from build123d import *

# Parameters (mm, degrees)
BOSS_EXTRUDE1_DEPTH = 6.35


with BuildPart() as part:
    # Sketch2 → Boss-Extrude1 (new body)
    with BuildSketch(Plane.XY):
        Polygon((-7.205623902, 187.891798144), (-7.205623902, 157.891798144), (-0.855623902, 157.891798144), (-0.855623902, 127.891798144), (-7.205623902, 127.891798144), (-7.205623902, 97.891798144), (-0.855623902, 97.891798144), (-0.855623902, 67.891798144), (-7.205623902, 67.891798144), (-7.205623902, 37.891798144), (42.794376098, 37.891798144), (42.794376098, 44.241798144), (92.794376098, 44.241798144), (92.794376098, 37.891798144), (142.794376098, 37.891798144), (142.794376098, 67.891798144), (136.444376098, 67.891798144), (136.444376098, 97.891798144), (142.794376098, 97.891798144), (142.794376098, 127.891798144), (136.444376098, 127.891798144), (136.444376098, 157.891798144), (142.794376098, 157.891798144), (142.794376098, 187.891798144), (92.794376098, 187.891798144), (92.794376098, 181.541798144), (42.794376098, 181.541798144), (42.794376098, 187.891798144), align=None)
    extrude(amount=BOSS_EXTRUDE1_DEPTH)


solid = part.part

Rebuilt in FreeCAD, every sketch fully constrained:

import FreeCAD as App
import Part
import Sketcher

doc = App.newDocument("Part")
body = doc.addObject("PartDesign::Body", "Body")

# Sketch on XY plane
sketch1 = body.newObject("Sketcher::SketchObject", "Sketch")
sketch1.AttachmentSupport = (doc.getObject("XY_Plane"), [""])
sketch1.MapMode = "FlatFace"
sketch1.addGeometry([
    Part.LineSegment(App.Vector(-7.205624, 187.891798, 0), App.Vector(-7.205624, 157.891798, 0)),  # 0
    Part.LineSegment(App.Vector(-7.205624, 157.891798, 0), App.Vector(-0.855624, 157.891798, 0)),  # 1
    Part.LineSegment(App.Vector(-0.855624, 157.891798, 0), App.Vector(-0.855624, 127.891798, 0)),  # 2
    Part.LineSegment(App.Vector(-0.855624, 127.891798, 0), App.Vector(-7.205624, 127.891798, 0)),  # 3
    Part.LineSegment(App.Vector(-7.205624, 127.891798, 0), App.Vector(-7.205624, 97.891798, 0)),  # 4
    Part.LineSegment(App.Vector(-7.205624, 97.891798, 0), App.Vector(-0.855624, 97.891798, 0)),  # 5
    Part.LineSegment(App.Vector(-0.855624, 97.891798, 0), App.Vector(-0.855624, 67.891798, 0)),  # 6
    Part.LineSegment(App.Vector(-0.855624, 67.891798, 0), App.Vector(-7.205624, 67.891798, 0)),  # 7
    Part.LineSegment(App.Vector(-7.205624, 67.891798, 0), App.Vector(-7.205624, 37.891798, 0)),  # 8
    Part.LineSegment(App.Vector(-7.205624, 37.891798, 0), App.Vector(42.794376, 37.891798, 0)),  # 9
    Part.LineSegment(App.Vector(42.794376, 37.891798, 0), App.Vector(42.794376, 44.241798, 0)),  # 10
    Part.LineSegment(App.Vector(42.794376, 44.241798, 0), App.Vector(92.794376, 44.241798, 0)),  # 11
    Part.LineSegment(App.Vector(92.794376, 44.241798, 0), App.Vector(92.794376, 37.891798, 0)),  # 12
    Part.LineSegment(App.Vector(92.794376, 37.891798, 0), App.Vector(142.794376, 37.891798, 0)),  # 13
    Part.LineSegment(App.Vector(142.794376, 37.891798, 0), App.Vector(142.794376, 67.891798, 0)),  # 14
    Part.LineSegment(App.Vector(142.794376, 67.891798, 0), App.Vector(136.444376, 67.891798, 0)),  # 15
    Part.LineSegment(App.Vector(136.444376, 67.891798, 0), App.Vector(136.444376, 97.891798, 0)),  # 16
    Part.LineSegment(App.Vector(136.444376, 97.891798, 0), App.Vector(142.794376, 97.891798, 0)),  # 17
    Part.LineSegment(App.Vector(142.794376, 97.891798, 0), App.Vector(142.794376, 127.891798, 0)),  # 18
    Part.LineSegment(App.Vector(142.794376, 127.891798, 0), App.Vector(136.444376, 127.891798, 0)),  # 19
    Part.LineSegment(App.Vector(136.444376, 127.891798, 0), App.Vector(136.444376, 157.891798, 0)),  # 20
    Part.LineSegment(App.Vector(136.444376, 157.891798, 0), App.Vector(142.794376, 157.891798, 0)),  # 21
    Part.LineSegment(App.Vector(142.794376, 157.891798, 0), App.Vector(142.794376, 187.891798, 0)),  # 22
    Part.LineSegment(App.Vector(142.794376, 187.891798, 0), App.Vector(92.794376, 187.891798, 0)),  # 23
    Part.LineSegment(App.Vector(92.794376, 187.891798, 0), App.Vector(92.794376, 181.541798, 0)),  # 24
    Part.LineSegment(App.Vector(92.794376, 181.541798, 0), App.Vector(42.794376, 181.541798, 0)),  # 25
    Part.LineSegment(App.Vector(42.794376, 181.541798, 0), App.Vector(42.794376, 187.891798, 0)),  # 26
    Part.LineSegment(App.Vector(42.794376, 187.891798, 0), App.Vector(-7.205624, 187.891798, 0)),  # 27
], False)
sketch1.addConstraint([
    Sketcher.Constraint("Coincident", 0, 2, 1, 1),
    Sketcher.Constraint("Coincident", 1, 2, 2, 1),
    Sketcher.Constraint("Coincident", 2, 2, 3, 1),
    Sketcher.Constraint("Coincident", 3, 2, 4, 1),
    Sketcher.Constraint("Coincident", 4, 2, 5, 1),
    Sketcher.Constraint("Coincident", 5, 2, 6, 1),
    Sketcher.Constraint("Coincident", 6, 2, 7, 1),
    Sketcher.Constraint("Coincident", 7, 2, 8, 1),
    Sketcher.Constraint("Coincident", 8, 2, 9, 1),
    Sketcher.Constraint("Coincident", 9, 2, 10, 1),
    Sketcher.Constraint("Coincident", 10, 2, 11, 1),
    Sketcher.Constraint("Coincident", 11, 2, 12, 1),
    Sketcher.Constraint("Coincident", 12, 2, 13, 1),
    Sketcher.Constraint("Coincident", 13, 2, 14, 1),
    Sketcher.Constraint("Coincident", 14, 2, 15, 1),
    Sketcher.Constraint("Coincident", 15, 2, 16, 1),
    Sketcher.Constraint("Coincident", 16, 2, 17, 1),
    Sketcher.Constraint("Coincident", 17, 2, 18, 1),
    Sketcher.Constraint("Coincident", 18, 2, 19, 1),
    Sketcher.Constraint("Coincident", 19, 2, 20, 1),
    Sketcher.Constraint("Coincident", 20, 2, 21, 1),
    Sketcher.Constraint("Coincident", 21, 2, 22, 1),
    Sketcher.Constraint("Coincident", 22, 2, 23, 1),
    Sketcher.Constraint("Coincident", 23, 2, 24, 1),
    Sketcher.Constraint("Coincident", 24, 2, 25, 1),
    Sketcher.Constraint("Coincident", 25, 2, 26, 1),
    Sketcher.Constraint("Coincident", 26, 2, 27, 1),
    Sketcher.Constraint("Coincident", 27, 2, 0, 1),
    Sketcher.Constraint("Vertical", 0),
    Sketcher.Constraint("Horizontal", 1),
    Sketcher.Constraint("Vertical", 2),
    Sketcher.Constraint("Horizontal", 3),
    Sketcher.Constraint("Vertical", 4),
    Sketcher.Constraint("Horizontal", 5),
    Sketcher.Constraint("Vertical", 6),
    Sketcher.Constraint("Horizontal", 7),
    Sketcher.Constraint("Vertical", 8),
    Sketcher.Constraint("Horizontal", 9),
    Sketcher.Constraint("Vertical", 10),
    Sketcher.Constraint("Horizontal", 11),
    Sketcher.Constraint("Vertical", 12),
    Sketcher.Constraint("Horizontal", 13),
    Sketcher.Constraint("Vertical", 14),
    Sketcher.Constraint("Horizontal", 15),
    Sketcher.Constraint("Vertical", 16),
    Sketcher.Constraint("Horizontal", 17),
    Sketcher.Constraint("Vertical", 18),
    Sketcher.Constraint("Horizontal", 19),
    Sketcher.Constraint("Vertical", 20),
    Sketcher.Constraint("Horizontal", 21),
    Sketcher.Constraint("Vertical", 22),
    Sketcher.Constraint("Horizontal", 23),
    Sketcher.Constraint("Vertical", 24),
    Sketcher.Constraint("Horizontal", 25),
    Sketcher.Constraint("Vertical", 26),
    Sketcher.Constraint("Horizontal", 27),
    Sketcher.Constraint("Horizontal", 9, 2, 12, 2),
    Sketcher.Constraint("Horizontal", 7, 2, 14, 2),
    Sketcher.Constraint("Horizontal", 5, 2, 16, 2),
    Sketcher.Constraint("Horizontal", 3, 2, 18, 2),
    Sketcher.Constraint("Horizontal", 1, 2, 20, 2),
    Sketcher.Constraint("Horizontal", 23, 2, 26, 2),
    Sketcher.Constraint("Vertical", 0, 2, 3, 2),
    Sketcher.Constraint("Vertical", 2, 2, 5, 2),
    Sketcher.Constraint("Vertical", 4, 2, 7, 2),
    Sketcher.Constraint("Vertical", 14, 2, 17, 2),
    Sketcher.Constraint("Vertical", 16, 2, 19, 2),
    Sketcher.Constraint("Vertical", 18, 2, 21, 2),
    Sketcher.Constraint("Vertical", 12, 2, 23, 2),
    Sketcher.Constraint("Vertical", 10, 2, 25, 2),
    Sketcher.Constraint("Equal", 9, 11),
    Sketcher.Constraint("Equal", 11, 13),
    Sketcher.Constraint("Equal", 7, 15),
    Sketcher.Constraint("Equal", 0, 2),
    Sketcher.Constraint("Equal", 2, 4),
    Sketcher.Constraint("Equal", 4, 6),
    Sketcher.Constraint("Equal", 6, 8),
    Sketcher.Constraint("Equal", 21, 10),
    Sketcher.Constraint("Equal", 12, 24),
    Sketcher.Constraint("DistanceX", 9, 1, 9, 2, 50.0),
    Sketcher.Constraint("DistanceY", 0, 2, 0, 1, 30.0),
    Sketcher.Constraint("DistanceX", 1, 1, 1, 2, 6.35),
    Sketcher.Constraint("DistanceY", -1, 1, 0, 2, 157.891798),
    Sketcher.Constraint("DistanceX", 0, 2, -1, 1, 7.205624),
])
pad1 = body.newObject("PartDesign::Pad", "Pad")
pad1.Profile = sketch1
pad1.Length = 6.35

doc.recompute()
